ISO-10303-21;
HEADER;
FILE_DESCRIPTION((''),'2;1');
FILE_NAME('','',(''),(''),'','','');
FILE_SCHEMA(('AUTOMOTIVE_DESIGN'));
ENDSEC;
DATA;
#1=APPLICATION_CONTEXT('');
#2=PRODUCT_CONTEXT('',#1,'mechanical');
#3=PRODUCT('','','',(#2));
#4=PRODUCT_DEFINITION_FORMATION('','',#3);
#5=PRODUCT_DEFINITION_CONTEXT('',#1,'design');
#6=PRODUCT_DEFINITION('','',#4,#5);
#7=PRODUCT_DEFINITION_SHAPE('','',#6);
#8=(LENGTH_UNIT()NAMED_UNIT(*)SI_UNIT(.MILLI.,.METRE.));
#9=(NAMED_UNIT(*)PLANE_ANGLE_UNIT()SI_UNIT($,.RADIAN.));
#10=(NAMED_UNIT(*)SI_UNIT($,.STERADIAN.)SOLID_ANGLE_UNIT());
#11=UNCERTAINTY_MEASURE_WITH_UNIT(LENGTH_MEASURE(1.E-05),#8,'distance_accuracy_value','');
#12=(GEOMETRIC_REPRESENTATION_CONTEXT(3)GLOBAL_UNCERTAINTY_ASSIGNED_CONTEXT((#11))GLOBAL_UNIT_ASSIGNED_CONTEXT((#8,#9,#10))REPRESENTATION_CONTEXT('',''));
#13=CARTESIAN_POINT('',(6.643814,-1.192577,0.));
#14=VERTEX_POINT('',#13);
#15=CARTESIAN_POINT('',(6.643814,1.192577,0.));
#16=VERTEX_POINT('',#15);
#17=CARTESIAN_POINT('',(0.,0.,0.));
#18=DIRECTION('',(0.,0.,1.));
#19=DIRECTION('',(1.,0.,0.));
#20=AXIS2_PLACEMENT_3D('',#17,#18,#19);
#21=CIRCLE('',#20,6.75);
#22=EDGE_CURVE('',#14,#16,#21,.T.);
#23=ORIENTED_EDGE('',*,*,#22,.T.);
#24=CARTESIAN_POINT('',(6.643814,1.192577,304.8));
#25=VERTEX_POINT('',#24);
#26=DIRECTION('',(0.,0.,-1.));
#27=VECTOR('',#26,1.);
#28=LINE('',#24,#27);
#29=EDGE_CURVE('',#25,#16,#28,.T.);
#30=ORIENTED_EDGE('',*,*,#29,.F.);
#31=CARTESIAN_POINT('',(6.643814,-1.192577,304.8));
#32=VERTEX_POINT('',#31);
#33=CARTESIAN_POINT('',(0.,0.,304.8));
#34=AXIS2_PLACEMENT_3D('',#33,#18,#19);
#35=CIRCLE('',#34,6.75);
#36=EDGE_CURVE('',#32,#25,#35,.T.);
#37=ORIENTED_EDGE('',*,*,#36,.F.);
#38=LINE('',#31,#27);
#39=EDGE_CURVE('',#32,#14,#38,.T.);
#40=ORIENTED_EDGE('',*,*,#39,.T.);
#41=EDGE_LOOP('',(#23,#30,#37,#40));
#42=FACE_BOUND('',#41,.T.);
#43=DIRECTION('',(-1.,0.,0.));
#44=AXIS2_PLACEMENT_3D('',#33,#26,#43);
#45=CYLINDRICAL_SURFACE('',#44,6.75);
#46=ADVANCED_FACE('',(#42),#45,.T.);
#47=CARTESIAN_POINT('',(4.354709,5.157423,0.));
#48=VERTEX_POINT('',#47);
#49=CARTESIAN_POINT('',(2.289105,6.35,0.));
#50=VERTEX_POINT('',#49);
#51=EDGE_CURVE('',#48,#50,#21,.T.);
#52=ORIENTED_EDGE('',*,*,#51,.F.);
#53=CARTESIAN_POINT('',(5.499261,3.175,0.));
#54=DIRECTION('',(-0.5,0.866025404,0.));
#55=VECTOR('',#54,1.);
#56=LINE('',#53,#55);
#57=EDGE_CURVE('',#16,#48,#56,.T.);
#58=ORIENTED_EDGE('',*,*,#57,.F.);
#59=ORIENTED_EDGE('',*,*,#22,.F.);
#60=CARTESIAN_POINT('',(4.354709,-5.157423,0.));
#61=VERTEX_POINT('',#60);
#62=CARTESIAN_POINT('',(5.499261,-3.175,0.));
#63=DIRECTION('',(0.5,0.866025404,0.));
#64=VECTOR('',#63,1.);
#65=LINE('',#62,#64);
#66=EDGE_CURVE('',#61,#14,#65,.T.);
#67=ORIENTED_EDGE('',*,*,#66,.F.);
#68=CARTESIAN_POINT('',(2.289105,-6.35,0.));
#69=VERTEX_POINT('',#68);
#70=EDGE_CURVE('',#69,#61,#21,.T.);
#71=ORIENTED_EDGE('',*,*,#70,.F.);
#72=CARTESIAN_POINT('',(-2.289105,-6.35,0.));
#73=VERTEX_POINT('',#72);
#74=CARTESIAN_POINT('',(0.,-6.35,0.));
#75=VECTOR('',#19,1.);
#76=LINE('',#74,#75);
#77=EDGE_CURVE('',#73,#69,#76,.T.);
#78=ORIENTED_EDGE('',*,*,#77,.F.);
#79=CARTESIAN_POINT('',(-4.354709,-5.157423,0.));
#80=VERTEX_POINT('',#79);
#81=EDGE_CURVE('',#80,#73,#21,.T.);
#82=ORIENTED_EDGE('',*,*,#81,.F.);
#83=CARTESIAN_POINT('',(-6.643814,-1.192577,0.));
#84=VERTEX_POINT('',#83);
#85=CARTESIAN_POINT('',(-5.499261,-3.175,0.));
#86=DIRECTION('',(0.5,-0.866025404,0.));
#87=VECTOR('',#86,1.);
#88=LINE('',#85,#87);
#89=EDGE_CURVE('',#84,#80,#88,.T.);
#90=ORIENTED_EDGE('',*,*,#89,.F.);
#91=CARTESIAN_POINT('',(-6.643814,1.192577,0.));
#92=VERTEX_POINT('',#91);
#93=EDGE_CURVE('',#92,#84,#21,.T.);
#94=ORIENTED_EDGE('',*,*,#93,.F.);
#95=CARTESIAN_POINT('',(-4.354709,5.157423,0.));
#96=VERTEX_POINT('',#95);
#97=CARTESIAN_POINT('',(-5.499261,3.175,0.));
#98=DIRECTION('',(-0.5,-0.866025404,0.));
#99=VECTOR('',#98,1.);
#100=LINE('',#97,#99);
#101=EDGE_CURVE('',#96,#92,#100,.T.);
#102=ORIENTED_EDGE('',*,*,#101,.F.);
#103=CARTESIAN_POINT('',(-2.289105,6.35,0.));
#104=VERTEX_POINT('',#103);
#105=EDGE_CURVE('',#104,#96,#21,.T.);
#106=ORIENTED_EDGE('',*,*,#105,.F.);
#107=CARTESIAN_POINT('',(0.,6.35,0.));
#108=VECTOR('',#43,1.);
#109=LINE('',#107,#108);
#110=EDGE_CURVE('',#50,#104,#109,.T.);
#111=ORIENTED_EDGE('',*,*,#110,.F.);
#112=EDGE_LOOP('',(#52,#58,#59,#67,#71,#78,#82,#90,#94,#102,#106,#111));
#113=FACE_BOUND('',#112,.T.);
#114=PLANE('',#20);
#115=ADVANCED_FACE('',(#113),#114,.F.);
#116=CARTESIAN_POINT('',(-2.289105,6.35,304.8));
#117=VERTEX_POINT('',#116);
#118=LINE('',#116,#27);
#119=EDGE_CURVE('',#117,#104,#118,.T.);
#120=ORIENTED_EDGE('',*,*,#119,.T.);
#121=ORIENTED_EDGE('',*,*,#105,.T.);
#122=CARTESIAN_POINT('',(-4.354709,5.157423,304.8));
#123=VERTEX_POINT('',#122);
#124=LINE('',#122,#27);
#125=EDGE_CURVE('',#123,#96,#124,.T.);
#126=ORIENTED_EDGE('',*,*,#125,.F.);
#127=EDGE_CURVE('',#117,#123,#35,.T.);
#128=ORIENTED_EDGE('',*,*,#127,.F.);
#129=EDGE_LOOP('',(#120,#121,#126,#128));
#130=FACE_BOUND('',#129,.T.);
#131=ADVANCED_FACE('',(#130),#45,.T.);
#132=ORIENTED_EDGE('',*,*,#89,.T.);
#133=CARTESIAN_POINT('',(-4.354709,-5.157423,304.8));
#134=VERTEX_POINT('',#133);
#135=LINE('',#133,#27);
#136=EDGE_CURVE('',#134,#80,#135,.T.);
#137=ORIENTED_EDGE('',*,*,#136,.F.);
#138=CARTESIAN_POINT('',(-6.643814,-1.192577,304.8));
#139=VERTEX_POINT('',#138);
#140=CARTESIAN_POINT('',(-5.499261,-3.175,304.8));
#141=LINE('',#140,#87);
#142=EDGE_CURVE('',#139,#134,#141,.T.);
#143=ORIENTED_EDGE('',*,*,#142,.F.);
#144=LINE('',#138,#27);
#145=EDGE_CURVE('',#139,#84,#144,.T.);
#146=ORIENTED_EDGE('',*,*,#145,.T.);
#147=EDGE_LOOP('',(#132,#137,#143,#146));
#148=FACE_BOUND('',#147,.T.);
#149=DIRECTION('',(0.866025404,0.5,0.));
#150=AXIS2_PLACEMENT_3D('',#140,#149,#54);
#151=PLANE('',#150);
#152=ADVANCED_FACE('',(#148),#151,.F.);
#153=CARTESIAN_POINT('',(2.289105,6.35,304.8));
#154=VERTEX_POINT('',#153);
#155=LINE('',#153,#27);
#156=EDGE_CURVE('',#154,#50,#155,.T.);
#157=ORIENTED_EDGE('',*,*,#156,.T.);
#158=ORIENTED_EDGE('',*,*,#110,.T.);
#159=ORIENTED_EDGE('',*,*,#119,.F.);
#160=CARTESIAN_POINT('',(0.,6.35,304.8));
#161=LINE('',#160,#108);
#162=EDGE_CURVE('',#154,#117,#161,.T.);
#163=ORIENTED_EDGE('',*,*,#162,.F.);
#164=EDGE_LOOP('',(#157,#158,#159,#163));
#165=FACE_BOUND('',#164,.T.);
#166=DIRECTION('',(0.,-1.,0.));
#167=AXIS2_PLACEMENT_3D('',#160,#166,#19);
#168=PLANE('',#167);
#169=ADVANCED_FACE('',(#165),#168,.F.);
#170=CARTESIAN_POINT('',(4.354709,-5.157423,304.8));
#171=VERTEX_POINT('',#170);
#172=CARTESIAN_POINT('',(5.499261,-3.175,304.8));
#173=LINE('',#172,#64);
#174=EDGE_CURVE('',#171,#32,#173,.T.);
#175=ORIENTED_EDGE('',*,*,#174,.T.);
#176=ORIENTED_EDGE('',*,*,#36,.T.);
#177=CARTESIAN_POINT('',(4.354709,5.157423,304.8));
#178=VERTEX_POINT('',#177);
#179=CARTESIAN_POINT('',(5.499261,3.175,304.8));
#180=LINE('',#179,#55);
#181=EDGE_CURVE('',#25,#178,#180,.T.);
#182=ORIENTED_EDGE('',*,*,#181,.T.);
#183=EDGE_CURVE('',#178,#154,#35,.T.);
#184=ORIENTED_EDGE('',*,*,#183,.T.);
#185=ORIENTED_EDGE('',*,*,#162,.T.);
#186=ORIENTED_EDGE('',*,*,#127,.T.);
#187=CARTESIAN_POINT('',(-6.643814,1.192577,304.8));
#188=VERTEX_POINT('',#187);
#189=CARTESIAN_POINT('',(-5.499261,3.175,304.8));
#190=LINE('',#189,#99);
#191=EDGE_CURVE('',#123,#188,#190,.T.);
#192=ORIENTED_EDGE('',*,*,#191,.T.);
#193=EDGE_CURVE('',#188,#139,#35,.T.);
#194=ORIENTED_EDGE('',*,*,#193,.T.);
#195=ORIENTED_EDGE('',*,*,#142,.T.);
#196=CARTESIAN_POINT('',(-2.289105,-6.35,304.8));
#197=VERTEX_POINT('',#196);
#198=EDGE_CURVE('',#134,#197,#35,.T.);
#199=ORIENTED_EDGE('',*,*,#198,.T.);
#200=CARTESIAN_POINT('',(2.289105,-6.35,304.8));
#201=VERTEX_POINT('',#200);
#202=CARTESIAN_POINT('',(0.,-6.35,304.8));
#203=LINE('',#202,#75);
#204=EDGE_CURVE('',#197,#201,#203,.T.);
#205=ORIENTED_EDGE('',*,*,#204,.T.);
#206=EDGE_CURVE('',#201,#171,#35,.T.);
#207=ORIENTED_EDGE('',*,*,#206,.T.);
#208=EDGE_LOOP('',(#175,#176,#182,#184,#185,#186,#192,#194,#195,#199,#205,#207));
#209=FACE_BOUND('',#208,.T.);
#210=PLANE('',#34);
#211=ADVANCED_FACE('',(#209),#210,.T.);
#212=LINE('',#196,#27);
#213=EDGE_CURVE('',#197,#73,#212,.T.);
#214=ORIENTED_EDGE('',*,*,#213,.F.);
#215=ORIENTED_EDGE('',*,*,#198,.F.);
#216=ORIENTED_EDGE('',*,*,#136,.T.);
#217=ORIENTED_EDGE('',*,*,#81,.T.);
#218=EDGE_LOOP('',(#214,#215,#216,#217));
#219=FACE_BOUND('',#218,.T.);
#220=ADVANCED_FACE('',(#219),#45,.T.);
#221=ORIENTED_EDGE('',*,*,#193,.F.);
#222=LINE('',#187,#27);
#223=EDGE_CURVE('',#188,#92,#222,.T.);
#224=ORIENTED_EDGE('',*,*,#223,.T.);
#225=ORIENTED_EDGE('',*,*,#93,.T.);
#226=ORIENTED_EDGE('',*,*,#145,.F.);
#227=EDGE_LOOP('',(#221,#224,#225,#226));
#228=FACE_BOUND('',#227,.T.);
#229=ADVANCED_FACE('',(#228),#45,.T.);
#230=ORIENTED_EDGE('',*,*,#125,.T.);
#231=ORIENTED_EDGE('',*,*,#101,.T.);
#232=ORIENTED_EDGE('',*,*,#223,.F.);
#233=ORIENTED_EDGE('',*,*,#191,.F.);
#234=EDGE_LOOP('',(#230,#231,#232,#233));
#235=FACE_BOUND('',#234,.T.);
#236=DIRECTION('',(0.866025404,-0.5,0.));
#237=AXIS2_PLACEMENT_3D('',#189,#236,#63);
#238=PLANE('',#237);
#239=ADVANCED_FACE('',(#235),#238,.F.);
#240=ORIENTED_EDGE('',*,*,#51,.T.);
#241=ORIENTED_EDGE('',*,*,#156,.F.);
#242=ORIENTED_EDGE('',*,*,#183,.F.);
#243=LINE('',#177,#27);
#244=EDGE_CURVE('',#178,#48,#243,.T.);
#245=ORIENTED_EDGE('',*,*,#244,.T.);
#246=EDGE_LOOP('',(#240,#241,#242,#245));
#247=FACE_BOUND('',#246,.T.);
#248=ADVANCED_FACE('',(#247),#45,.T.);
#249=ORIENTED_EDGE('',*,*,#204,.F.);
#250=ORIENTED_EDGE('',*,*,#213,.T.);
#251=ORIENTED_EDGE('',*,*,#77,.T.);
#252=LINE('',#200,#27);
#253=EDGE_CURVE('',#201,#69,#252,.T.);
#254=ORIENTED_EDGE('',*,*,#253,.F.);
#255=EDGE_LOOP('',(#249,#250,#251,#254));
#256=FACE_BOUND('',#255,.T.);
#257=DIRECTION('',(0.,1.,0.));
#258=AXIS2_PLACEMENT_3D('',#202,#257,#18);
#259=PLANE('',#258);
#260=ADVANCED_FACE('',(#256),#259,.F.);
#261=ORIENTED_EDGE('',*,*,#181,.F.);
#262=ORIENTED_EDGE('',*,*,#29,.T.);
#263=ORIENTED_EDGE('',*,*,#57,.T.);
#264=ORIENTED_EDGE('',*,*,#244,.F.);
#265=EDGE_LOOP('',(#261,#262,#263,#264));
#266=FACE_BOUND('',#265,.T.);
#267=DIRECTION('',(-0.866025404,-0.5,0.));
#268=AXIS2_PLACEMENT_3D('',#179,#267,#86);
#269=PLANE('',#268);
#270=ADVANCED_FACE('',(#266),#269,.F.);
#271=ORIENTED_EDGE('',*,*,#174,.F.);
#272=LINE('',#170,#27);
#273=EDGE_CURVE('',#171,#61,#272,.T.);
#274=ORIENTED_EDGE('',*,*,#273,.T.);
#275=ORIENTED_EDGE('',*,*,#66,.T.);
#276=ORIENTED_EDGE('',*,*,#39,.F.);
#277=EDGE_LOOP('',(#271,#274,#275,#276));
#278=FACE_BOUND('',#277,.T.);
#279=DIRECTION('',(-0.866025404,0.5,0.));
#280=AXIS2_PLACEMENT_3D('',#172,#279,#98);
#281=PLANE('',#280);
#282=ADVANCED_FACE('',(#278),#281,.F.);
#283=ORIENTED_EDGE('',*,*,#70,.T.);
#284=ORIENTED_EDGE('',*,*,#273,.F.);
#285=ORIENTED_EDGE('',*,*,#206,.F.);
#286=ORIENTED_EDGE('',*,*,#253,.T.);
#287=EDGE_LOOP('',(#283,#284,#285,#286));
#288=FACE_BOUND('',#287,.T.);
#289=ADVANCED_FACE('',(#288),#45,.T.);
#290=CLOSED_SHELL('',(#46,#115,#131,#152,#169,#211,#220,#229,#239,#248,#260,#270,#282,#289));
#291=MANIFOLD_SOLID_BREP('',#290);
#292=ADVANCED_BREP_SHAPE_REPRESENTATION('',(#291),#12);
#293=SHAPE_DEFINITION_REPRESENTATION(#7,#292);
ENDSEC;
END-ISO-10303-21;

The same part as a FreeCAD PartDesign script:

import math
import FreeCAD as App
import Part
import Sketcher
from FreeCAD import Vector
Q = App.Units.Quantity

doc = App.newDocument("Part")
body = doc.addObject("PartDesign::Body", "Body")

# Sketch on XY plane
sketch1 = body.newObject("Sketcher::SketchObject", "Sketch")
sketch1.AttachmentSupport = (doc.getObject("XY_Plane"), [""])
sketch1.MapMode = "FlatFace"
sketch1.addGeometry(Part.ArcOfCircle(Part.Circle(Vector(0, 0, 0), Vector(0, 0, 1), 6.75), math.radians(169.823671), math.radians(190.176329)), False)
sketch1.addGeometry(Part.LineSegment(Vector(-6.643814, -1.192577, 0), Vector(-4.354709, -5.157423, 0)), False)
sketch1.addGeometry(Part.ArcOfCircle(Part.Circle(Vector(0, 0, 0), Vector(0, 0, 1), 6.75), math.radians(-130.176329), math.radians(-109.823671)), False)
sketch1.addGeometry(Part.LineSegment(Vector(-2.289105, -6.35, 0), Vector(2.289105, -6.35, 0)), False)
sketch1.addGeometry(Part.ArcOfCircle(Part.Circle(Vector(0, 0, 0), Vector(0, 0, 1), 6.75), math.radians(-70.176329), math.radians(-49.823671)), False)
sketch1.addGeometry(Part.LineSegment(Vector(4.354709, -5.157423, 0), Vector(6.643814, -1.192577, 0)), False)
sketch1.addGeometry(Part.ArcOfCircle(Part.Circle(Vector(0, 0, 0), Vector(0, 0, 1), 6.75), math.radians(-10.176329), math.radians(0)), False)
sketch1.addGeometry(Part.ArcOfCircle(Part.Circle(Vector(0, 0, 0), Vector(0, 0, 1), 6.75), math.radians(0), math.radians(10.176329)), False)
sketch1.addGeometry(Part.LineSegment(Vector(6.643814, 1.192577, 0), Vector(4.354709, 5.157423, 0)), False)
sketch1.addGeometry(Part.ArcOfCircle(Part.Circle(Vector(0, 0, 0), Vector(0, 0, 1), 6.75), math.radians(49.823671), math.radians(70.176329)), False)
sketch1.addGeometry(Part.LineSegment(Vector(2.289105, 6.35, 0), Vector(-2.289105, 6.35, 0)), False)
sketch1.addGeometry(Part.ArcOfCircle(Part.Circle(Vector(0, 0, 0), Vector(0, 0, 1), 6.75), math.radians(109.823671), math.radians(130.176329)), False)
sketch1.addGeometry(Part.LineSegment(Vector(-4.354709, 5.157423, 0), Vector(-6.643814, 1.192577, 0)), False)
sketch1.addConstraint(Sketcher.Constraint("Coincident", 0, 2, 1, 1))
sketch1.addConstraint(Sketcher.Constraint("Coincident", 1, 2, 2, 1))
sketch1.addConstraint(Sketcher.Constraint("Coincident", 2, 2, 3, 1))
sketch1.addConstraint(Sketcher.Constraint("Coincident", 3, 2, 4, 1))
sketch1.addConstraint(Sketcher.Constraint("Coincident", 4, 2, 5, 1))
sketch1.addConstraint(Sketcher.Constraint("Coincident", 5, 2, 6, 1))
sketch1.addConstraint(Sketcher.Constraint("Tangent", 6, 2, 7, 1))
sketch1.addConstraint(Sketcher.Constraint("Coincident", 7, 2, 8, 1))
sketch1.addConstraint(Sketcher.Constraint("Coincident", 8, 2, 9, 1))
sketch1.addConstraint(Sketcher.Constraint("Coincident", 9, 2, 10, 1))
sketch1.addConstraint(Sketcher.Constraint("Coincident", 10, 2, 11, 1))
sketch1.addConstraint(Sketcher.Constraint("Coincident", 11, 2, 12, 1))
sketch1.addConstraint(Sketcher.Constraint("Coincident", 12, 2, 0, 1))
sketch1.addConstraint(Sketcher.Constraint("Horizontal", 3))
sketch1.addConstraint(Sketcher.Constraint("Horizontal", 10))
sketch1.addConstraint(Sketcher.Constraint("Coincident", 0, 3, -1, 1))
sketch1.addConstraint(Sketcher.Constraint("Coincident", 2, 3, -1, 1))
sketch1.addConstraint(Sketcher.Constraint("Coincident", 4, 3, -1, 1))
sketch1.addConstraint(Sketcher.Constraint("Coincident", 6, 3, -1, 1))
sketch1.addConstraint(Sketcher.Constraint("Coincident", 9, 3, -1, 1))
sketch1.addConstraint(Sketcher.Constraint("Coincident", 11, 3, -1, 1))
sketch1.addConstraint(Sketcher.Constraint("Equal", 0, 2))
sketch1.addConstraint(Sketcher.Constraint("Equal", 2, 4))
sketch1.addConstraint(Sketcher.Constraint("Equal", 4, 6))
sketch1.addConstraint(Sketcher.Constraint("Equal", 6, 7))
sketch1.addConstraint(Sketcher.Constraint("Equal", 7, 9))
sketch1.addConstraint(Sketcher.Constraint("Equal", 9, 11))
sketch1.addConstraint(Sketcher.Constraint("PointOnObject", 6, 2, -1))
sketch1.addConstraint(Sketcher.Constraint("Parallel", 1, 8))
sketch1.addConstraint(Sketcher.Constraint("Parallel", 5, 12))
sketch1.addConstraint(Sketcher.Constraint("Horizontal", 1, 2, 4, 2))
sketch1.addConstraint(Sketcher.Constraint("Horizontal", 0, 2, 5, 2))
sketch1.addConstraint(Sketcher.Constraint("Horizontal", 8, 2, 11, 2))
sketch1.addConstraint(Sketcher.Constraint("Vertical", 5, 2, 7, 2))
sketch1.addConstraint(Sketcher.Constraint("Vertical", 3, 2, 9, 2))
sketch1.addConstraint(Sketcher.Constraint("Angle", 1, Q("-60 deg")))
sketch1.addConstraint(Sketcher.Constraint("Radius", 0, 6.75))
sketch1.addConstraint(Sketcher.Constraint("DistanceY", 2, 2, -1, 1, 6.35))
sketch1.addConstraint(Sketcher.Constraint("DistanceY", 4, 2, 7, 2, 6.35))
pad1 = body.newObject("PartDesign::Pad", "Pad")
pad1.Profile = sketch1
pad1.Length = 304.8

doc.recompute()
